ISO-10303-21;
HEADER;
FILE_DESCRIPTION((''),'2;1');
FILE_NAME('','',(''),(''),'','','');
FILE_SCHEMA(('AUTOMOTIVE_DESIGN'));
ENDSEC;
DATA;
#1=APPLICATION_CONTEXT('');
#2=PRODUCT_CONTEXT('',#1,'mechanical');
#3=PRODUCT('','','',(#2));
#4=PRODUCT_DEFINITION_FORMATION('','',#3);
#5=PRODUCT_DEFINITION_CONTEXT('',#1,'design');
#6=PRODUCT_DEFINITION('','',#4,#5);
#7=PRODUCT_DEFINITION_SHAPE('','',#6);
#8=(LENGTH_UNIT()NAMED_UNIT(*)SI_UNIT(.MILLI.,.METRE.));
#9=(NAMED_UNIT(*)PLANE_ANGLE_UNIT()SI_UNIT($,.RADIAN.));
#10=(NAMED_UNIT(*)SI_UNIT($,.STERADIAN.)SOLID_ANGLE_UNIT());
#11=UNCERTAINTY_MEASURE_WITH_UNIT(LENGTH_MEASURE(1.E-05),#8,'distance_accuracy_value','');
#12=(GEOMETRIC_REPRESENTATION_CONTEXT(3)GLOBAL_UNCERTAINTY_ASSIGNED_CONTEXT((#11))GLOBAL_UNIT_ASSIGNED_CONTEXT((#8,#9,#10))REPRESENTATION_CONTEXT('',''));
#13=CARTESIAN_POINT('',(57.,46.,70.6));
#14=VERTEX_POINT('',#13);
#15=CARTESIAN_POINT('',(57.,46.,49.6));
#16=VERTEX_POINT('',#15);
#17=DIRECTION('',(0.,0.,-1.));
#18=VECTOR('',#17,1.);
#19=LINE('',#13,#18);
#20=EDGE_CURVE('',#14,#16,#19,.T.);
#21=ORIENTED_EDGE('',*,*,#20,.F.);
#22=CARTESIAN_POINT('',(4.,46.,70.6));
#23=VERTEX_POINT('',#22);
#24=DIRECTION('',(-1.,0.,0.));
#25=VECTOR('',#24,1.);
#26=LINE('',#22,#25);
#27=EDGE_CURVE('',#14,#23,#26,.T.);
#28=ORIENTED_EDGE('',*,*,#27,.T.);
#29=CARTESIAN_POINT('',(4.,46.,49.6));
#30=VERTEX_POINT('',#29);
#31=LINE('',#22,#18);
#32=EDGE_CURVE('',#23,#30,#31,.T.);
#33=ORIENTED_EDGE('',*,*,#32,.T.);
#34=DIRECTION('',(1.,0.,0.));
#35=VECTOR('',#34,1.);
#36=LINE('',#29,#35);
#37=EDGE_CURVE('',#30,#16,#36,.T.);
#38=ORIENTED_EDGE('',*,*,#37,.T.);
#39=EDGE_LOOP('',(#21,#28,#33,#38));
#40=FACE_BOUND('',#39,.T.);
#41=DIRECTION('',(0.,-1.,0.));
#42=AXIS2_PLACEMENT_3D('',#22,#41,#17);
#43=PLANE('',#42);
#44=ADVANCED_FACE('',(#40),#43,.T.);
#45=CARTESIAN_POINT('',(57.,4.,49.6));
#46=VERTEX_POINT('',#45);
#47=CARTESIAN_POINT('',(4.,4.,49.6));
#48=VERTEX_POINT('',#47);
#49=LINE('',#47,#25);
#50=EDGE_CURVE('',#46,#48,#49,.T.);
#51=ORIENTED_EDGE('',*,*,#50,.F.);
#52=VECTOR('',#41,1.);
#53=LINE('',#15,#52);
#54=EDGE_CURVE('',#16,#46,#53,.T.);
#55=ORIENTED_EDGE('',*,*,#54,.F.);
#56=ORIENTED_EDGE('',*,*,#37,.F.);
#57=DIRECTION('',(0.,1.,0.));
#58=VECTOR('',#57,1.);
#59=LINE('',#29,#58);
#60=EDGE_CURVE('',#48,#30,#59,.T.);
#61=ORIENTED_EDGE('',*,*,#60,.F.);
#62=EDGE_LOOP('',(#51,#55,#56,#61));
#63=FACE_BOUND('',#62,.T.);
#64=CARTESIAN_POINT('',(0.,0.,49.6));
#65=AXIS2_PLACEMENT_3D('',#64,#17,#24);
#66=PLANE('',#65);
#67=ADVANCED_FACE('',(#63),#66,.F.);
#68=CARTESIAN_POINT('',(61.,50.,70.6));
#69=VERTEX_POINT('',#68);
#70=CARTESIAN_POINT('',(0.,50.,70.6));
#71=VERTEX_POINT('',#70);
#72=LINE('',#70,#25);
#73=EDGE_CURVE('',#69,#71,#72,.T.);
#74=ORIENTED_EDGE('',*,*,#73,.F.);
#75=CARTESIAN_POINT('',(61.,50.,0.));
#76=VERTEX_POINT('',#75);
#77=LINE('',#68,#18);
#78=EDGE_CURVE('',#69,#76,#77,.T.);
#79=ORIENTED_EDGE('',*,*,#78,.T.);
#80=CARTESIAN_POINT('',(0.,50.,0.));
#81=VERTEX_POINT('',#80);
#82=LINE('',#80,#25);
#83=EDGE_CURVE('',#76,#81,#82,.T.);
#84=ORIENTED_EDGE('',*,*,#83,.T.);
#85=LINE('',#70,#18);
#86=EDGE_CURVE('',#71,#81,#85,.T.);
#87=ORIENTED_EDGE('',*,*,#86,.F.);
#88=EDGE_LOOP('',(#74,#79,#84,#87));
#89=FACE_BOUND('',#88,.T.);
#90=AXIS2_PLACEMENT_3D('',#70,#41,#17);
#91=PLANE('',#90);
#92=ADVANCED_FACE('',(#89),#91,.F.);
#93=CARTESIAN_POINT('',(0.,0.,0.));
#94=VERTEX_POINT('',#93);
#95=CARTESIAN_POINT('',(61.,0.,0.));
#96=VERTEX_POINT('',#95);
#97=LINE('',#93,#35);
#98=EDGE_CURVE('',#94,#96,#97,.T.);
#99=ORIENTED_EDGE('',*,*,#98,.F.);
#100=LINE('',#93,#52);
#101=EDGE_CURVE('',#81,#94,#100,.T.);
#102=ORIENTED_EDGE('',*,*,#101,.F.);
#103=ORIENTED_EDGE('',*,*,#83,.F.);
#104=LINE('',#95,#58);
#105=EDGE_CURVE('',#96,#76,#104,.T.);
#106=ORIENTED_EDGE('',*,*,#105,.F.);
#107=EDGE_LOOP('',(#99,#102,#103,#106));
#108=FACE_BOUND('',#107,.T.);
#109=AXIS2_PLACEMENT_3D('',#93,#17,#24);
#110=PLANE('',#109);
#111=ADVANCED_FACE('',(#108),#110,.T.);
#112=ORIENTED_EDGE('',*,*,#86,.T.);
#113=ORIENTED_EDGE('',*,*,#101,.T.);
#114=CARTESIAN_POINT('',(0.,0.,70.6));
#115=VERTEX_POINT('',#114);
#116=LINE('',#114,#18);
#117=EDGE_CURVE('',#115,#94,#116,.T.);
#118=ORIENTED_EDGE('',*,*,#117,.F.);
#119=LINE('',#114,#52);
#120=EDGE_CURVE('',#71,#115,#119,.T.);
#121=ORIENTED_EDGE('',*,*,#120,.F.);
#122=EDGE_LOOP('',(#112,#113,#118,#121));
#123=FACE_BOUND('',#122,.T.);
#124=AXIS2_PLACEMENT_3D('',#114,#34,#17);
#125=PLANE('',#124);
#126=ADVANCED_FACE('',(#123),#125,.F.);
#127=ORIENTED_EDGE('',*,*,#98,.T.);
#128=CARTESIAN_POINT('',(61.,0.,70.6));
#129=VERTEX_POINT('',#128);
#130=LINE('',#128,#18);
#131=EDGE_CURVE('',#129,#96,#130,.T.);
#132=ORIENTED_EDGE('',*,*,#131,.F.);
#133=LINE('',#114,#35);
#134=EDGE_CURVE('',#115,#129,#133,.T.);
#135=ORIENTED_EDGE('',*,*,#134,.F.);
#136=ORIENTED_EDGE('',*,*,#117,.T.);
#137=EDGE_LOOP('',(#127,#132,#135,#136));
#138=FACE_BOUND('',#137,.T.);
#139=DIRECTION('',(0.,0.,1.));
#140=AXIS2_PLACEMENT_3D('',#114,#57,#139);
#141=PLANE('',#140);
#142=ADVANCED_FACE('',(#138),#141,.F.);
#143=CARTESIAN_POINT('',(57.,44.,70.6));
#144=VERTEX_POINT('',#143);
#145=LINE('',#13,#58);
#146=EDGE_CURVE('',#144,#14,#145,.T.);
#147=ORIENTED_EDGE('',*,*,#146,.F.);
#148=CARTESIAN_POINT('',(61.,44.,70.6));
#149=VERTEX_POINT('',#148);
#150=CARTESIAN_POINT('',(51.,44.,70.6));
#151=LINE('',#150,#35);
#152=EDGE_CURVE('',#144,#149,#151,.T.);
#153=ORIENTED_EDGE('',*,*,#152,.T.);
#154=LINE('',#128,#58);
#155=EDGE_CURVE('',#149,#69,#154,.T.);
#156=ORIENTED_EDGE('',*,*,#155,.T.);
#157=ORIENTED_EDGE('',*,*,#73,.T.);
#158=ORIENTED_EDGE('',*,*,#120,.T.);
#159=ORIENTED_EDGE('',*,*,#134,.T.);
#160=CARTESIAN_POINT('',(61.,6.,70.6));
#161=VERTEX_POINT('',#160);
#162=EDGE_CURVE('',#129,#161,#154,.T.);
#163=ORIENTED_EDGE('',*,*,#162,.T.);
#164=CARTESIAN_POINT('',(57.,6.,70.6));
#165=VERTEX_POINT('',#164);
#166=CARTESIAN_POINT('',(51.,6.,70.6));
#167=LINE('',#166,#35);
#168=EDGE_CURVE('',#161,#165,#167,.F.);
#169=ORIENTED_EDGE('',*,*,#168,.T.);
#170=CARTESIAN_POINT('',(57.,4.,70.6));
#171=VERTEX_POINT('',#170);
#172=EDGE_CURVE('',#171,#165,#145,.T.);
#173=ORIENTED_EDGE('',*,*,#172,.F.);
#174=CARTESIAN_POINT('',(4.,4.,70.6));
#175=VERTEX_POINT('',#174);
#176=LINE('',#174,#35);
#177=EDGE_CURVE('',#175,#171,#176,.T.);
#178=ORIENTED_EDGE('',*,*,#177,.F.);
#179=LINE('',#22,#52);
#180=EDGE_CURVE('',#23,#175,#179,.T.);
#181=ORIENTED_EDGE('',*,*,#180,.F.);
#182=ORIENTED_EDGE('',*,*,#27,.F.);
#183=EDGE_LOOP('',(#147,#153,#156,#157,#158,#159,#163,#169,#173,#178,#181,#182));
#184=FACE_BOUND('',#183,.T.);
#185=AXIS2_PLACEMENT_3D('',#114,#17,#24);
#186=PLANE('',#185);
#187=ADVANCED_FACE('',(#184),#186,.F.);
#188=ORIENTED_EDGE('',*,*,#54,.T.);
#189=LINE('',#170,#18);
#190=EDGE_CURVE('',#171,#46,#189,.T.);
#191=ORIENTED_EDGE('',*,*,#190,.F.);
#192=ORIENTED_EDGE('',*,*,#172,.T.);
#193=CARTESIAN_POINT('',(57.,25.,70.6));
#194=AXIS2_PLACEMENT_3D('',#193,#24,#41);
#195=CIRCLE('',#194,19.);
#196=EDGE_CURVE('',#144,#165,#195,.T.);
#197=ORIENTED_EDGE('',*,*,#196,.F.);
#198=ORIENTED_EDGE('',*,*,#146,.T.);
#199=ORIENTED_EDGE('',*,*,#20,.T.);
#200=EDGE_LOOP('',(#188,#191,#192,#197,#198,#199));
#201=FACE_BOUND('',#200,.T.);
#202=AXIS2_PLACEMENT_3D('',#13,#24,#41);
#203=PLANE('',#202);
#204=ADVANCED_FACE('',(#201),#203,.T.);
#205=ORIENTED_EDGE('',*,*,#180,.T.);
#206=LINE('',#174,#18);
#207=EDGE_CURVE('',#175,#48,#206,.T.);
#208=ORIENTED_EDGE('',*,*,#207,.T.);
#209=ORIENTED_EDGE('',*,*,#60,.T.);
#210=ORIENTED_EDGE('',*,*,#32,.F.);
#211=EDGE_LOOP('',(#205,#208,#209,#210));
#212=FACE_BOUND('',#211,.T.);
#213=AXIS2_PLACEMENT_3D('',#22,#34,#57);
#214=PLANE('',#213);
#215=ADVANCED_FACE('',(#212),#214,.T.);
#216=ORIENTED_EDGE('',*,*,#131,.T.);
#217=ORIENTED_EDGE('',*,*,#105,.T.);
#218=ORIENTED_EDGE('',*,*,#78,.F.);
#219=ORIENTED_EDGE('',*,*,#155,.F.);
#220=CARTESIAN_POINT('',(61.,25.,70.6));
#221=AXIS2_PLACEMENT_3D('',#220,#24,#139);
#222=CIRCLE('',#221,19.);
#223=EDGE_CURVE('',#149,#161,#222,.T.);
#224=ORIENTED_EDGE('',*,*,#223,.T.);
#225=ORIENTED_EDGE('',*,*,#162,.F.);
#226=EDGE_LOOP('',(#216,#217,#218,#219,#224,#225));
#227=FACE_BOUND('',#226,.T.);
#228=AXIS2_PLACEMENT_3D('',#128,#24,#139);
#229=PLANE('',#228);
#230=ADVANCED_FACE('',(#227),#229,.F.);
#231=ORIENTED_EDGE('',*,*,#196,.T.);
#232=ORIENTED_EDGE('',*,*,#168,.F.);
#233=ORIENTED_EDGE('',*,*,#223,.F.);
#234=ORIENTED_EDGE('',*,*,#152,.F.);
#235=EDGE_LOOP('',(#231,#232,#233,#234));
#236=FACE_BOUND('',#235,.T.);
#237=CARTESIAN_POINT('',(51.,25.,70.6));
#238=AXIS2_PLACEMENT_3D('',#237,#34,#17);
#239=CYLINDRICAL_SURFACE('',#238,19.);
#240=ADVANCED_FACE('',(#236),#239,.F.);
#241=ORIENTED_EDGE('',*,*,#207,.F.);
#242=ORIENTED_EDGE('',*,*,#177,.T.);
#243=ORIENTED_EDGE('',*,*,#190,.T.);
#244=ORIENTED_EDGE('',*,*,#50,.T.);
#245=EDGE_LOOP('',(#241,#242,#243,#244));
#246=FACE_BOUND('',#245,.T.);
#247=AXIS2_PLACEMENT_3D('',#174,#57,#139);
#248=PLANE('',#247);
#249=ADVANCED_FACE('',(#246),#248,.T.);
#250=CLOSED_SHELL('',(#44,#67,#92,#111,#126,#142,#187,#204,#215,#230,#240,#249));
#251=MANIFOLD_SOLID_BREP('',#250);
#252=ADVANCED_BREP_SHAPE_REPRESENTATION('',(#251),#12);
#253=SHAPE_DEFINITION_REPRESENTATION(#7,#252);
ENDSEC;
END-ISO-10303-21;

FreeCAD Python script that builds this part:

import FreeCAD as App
import Part
import Sketcher
from FreeCAD import Vector

doc = App.newDocument("Part")
body = doc.addObject("PartDesign::Body", "Body")

sketch1 = doc.addObject("Sketcher::SketchObject", "Sketch")
body.addObject(sketch1)
sketch1.AttachmentSupport = (doc.XY_Plane, [""])
sketch1.MapMode = "FlatFace"
sketch1.addGeometry(Part.LineSegment(Vector(0, 50, 0), Vector(0, 0, 0)), False)
sketch1.addGeometry(Part.LineSegment(Vector(0, 0, 0), Vector(61, 0, 0)), False)
sketch1.addGeometry(Part.LineSegment(Vector(61, 0, 0), Vector(61, 50, 0)), False)
sketch1.addGeometry(Part.LineSegment(Vector(61, 50, 0), Vector(0, 50, 0)), False)
sketch1.addGeometry(Part.LineSegment(Vector(57, 4, 0), Vector(4, 4, 0)), False)
sketch1.addGeometry(Part.LineSegment(Vector(4, 4, 0), Vector(4, 46, 0)), False)
sketch1.addGeometry(Part.LineSegment(Vector(4, 46, 0), Vector(57, 46, 0)), False)
sketch1.addGeometry(Part.LineSegment(Vector(57, 46, 0), Vector(57, 4, 0)), False)
sketch1.addConstraint(Sketcher.Constraint("Coincident", 0, 2, 1, 1))
sketch1.addConstraint(Sketcher.Constraint("Coincident", 1, 2, 2, 1))
sketch1.addConstraint(Sketcher.Constraint("Coincident", 2, 2, 3, 1))
sketch1.addConstraint(Sketcher.Constraint("Coincident", 3, 2, 0, 1))
sketch1.addConstraint(Sketcher.Constraint("Coincident", 4, 2, 5, 1))
sketch1.addConstraint(Sketcher.Constraint("Coincident", 5, 2, 6, 1))
sketch1.addConstraint(Sketcher.Constraint("Coincident", 6, 2, 7, 1))
sketch1.addConstraint(Sketcher.Constraint("Coincident", 7, 2, 4, 1))
sketch1.addConstraint(Sketcher.Constraint("Vertical", 0))
sketch1.addConstraint(Sketcher.Constraint("Horizontal", 1))
sketch1.addConstraint(Sketcher.Constraint("Vertical", 2))
sketch1.addConstraint(Sketcher.Constraint("Horizontal", 3))
sketch1.addConstraint(Sketcher.Constraint("Horizontal", 4))
sketch1.addConstraint(Sketcher.Constraint("Vertical", 5))
sketch1.addConstraint(Sketcher.Constraint("Horizontal", 6))
sketch1.addConstraint(Sketcher.Constraint("Vertical", 7))
sketch1.addConstraint(Sketcher.Constraint("Coincident", 0, 2, -1, 1))
sketch1.addConstraint(Sketcher.Constraint("DistanceX", 1, 1, 1, 2, 61.0))
sketch1.addConstraint(Sketcher.Constraint("DistanceX", 4, 2, 4, 1, 53.0))
sketch1.addConstraint(Sketcher.Constraint("DistanceY", 0, 2, 0, 1, 50.0))
sketch1.addConstraint(Sketcher.Constraint("DistanceY", 5, 1, 5, 2, 42.0))
sketch1.addConstraint(Sketcher.Constraint("DistanceX", -1, 1, 4, 2, 4.0))
sketch1.addConstraint(Sketcher.Constraint("DistanceY", -1, 1, 4, 2, 4.0))
pad1 = doc.addObject("PartDesign::Pad", "Pad")
body.addObject(pad1)
pad1.Profile = sketch1
pad1.Length = 70.6

sketch2 = doc.addObject("Sketcher::SketchObject", "Sketch001")
body.addObject(sketch2)
sketch2.AttachmentSupport = (doc.XY_Plane, [""])
sketch2.MapMode = "FlatFace"
sketch2.addGeometry(Part.LineSegment(Vector(61, 50, 0), Vector(61, 0, 0)), False)
sketch2.addGeometry(Part.LineSegment(Vector(61, 0, 0), Vector(0, 0, 0)), False)
sketch2.addGeometry(Part.LineSegment(Vector(0, 0, 0), Vector(0, 50, 0)), False)
sketch2.addGeometry(Part.LineSegment(Vector(0, 50, 0), Vector(61, 50, 0)), False)
sketch2.addConstraint(Sketcher.Constraint("Coincident", 0, 2, 1, 1))
sketch2.addConstraint(Sketcher.Constraint("Coincident", 1, 2, 2, 1))
sketch2.addConstraint(Sketcher.Constraint("Coincident", 2, 2, 3, 1))
sketch2.addConstraint(Sketcher.Constraint("Coincident", 3, 2, 0, 1))
sketch2.addConstraint(Sketcher.Constraint("Vertical", 0))
sketch2.addConstraint(Sketcher.Constraint("Horizontal", 1))
sketch2.addConstraint(Sketcher.Constraint("Vertical", 2))
sketch2.addConstraint(Sketcher.Constraint("Horizontal", 3))
sketch2.addConstraint(Sketcher.Constraint("Coincident", 1, 2, -1, 1))
sketch2.addConstraint(Sketcher.Constraint("DistanceX", 1, 2, 1, 1, 61.0))
sketch2.addConstraint(Sketcher.Constraint("DistanceY", 0, 2, 0, 1, 50.0))
pad2 = doc.addObject("PartDesign::Pad", "Pad001")
body.addObject(pad2)
pad2.Profile = sketch2
pad2.Length = 49.6

sketch3 = doc.addObject("Sketcher::SketchObject", "Sketch002")
body.addObject(sketch3)
sketch3.AttachmentSupport = (doc.YZ_Plane, [""])
sketch3.MapMode = "FlatFace"
sketch3.AttachmentOffset = App.Placement(Vector(0, 0, 61), App.Rotation())
sketch3.addGeometry(Part.Circle(Vector(25, 71, 0), Vector(0, 0, 1), 19), False)
sketch3.addConstraint(Sketcher.Constraint("Diameter", 0, 38.0))
sketch3.addConstraint(Sketcher.Constraint("DistanceX", -1, 1, 0, 3, 25.0))
sketch3.addConstraint(Sketcher.Constraint("DistanceY", -1, 1, 0, 3, 70.6))
pocket1 = doc.addObject("PartDesign::Pocket", "Pocket")
body.addObject(pocket1)
pocket1.Profile = sketch3
pocket1.Length = 10

doc.recompute()
